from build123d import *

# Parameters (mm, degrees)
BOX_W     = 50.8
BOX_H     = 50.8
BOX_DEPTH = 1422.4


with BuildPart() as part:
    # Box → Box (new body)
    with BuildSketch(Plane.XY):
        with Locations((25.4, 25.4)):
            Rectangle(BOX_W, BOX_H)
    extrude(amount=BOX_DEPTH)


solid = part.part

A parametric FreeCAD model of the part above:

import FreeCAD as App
import Part
import Sketcher
from FreeCAD import Vector
Q = App.Units.Quantity

doc = App.newDocument("Part")
body = doc.addObject("PartDesign::Body", "Body")

sketch1 = body.newObject("Sketcher::SketchObject", "Sketch")
sketch1.AttachmentSupport = (doc.getObject("XY_Plane"), [""])
sketch1.MapMode = "FlatFace"
sketch1.addGeometry(Part.LineSegment(Vector(0, 50.8, 0), Vector(0, 0, 0)), False)
sketch1.addGeometry(Part.LineSegment(Vector(0, 0, 0), Vector(50.8, 0, 0)), False)
sketch1.addGeometry(Part.LineSegment(Vector(50.8, 0, 0), Vector(50.8, 50.8, 0)), False)
sketch1.addGeometry(Part.LineSegment(Vector(50.8, 50.8, 0), Vector(0, 50.8, 0)), False)
sketch1.addConstraint(Sketcher.Constraint("Coincident", 0, 2, 1, 1))
sketch1.addConstraint(Sketcher.Constraint("Coincident", 1, 2, 2, 1))
sketch1.addConstraint(Sketcher.Constraint("Coincident", 2, 2, 3, 1))
sketch1.addConstraint(Sketcher.Constraint("Coincident", 3, 2, 0, 1))
sketch1.addConstraint(Sketcher.Constraint("Vertical", 0))
sketch1.addConstraint(Sketcher.Constraint("Horizontal", 1))
sketch1.addConstraint(Sketcher.Constraint("Vertical", 2))
sketch1.addConstraint(Sketcher.Constraint("Horizontal", 3))
sketch1.addConstraint(Sketcher.Constraint("Coincident", 0, 2, -1, 1))
sketch1.addConstraint(Sketcher.Constraint("Equal", 3, 0))
sketch1.addConstraint(Sketcher.Constraint("DistanceX", 1, 1, 1, 2, Q("2 in")))
pad1 = body.newObject("PartDesign::Pad", "Pad")
pad1.Profile = sketch1
pad1.Length = Q("56 in")

doc.recompute()
